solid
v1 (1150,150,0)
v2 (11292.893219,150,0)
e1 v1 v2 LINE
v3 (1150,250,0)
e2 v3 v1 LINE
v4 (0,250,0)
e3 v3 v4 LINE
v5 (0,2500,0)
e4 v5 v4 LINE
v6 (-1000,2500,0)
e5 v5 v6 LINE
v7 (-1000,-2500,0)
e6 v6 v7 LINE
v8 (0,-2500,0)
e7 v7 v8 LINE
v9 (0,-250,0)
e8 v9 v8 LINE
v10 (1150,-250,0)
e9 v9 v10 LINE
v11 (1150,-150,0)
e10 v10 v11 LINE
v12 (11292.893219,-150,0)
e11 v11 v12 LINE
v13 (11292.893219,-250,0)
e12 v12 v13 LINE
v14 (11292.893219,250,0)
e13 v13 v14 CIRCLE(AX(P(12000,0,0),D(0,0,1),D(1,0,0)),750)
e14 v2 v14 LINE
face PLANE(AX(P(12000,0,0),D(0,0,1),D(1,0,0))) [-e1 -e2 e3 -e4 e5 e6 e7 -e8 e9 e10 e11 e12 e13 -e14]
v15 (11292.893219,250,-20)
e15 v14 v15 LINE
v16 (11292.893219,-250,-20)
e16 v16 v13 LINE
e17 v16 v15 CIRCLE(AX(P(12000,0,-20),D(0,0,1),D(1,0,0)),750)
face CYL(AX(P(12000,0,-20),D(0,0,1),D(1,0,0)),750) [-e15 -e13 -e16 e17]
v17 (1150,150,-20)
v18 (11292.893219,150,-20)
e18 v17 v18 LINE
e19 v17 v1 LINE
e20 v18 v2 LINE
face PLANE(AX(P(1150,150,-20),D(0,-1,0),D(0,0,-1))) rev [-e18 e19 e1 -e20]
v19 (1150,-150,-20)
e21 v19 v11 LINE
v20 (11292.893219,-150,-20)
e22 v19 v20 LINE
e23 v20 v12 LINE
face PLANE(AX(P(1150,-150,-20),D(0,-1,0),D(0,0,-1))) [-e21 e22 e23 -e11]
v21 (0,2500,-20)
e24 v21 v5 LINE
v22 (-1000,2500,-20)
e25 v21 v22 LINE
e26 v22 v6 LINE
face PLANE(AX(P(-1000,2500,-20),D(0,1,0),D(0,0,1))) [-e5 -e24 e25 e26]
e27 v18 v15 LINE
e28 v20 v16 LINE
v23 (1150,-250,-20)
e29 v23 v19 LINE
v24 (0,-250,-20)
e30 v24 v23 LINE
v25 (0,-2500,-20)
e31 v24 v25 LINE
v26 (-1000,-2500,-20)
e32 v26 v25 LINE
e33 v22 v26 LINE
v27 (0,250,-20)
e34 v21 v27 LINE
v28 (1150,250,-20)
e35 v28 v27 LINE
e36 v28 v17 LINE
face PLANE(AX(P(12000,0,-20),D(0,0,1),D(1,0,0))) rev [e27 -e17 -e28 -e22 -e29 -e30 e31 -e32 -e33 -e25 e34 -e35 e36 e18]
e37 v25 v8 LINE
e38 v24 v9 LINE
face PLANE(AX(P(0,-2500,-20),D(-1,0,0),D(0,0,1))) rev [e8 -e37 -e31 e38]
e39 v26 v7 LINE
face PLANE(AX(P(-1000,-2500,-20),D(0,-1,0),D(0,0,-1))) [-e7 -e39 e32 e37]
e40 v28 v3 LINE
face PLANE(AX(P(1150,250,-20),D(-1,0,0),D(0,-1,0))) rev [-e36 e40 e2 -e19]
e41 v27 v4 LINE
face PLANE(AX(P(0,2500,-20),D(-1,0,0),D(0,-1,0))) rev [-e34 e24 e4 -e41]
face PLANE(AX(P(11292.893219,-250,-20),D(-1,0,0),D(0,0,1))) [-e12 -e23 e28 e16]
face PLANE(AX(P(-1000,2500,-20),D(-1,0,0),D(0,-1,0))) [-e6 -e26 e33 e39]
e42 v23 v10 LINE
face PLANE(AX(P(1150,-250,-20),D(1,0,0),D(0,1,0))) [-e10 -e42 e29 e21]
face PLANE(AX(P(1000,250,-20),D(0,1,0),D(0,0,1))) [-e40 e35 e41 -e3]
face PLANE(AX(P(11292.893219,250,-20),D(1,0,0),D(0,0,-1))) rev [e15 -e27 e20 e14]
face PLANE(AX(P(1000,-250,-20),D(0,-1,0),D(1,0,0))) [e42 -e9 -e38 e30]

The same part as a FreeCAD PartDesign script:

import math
import FreeCAD as App
import Part
import Sketcher


def add_polygon(sketch, points):
    """Adds a closed chain of lines whose ends are joined by coincident constraints."""
    first, n = sketch.GeometryCount, len(points)
    for a, b in zip(points, points[1:] + points[:1]):
        sketch.addGeometry(Part.LineSegment(App.Vector(*a, 0), App.Vector(*b, 0)), False)
    for i in range(n):
        sketch.addConstraint(Sketcher.Constraint("Coincident", first + i, 2, first + (i + 1) % n, 1))

doc = App.newDocument("Part")
body = doc.addObject("PartDesign::Body", "Body")

# Sketch on XY plane
sketch1 = body.newObject("Sketcher::SketchObject", "Sketch")
sketch1.AttachmentSupport = (doc.getObject("XY_Plane"), [""])
sketch1.MapMode = "FlatFace"
sketch1.addGeometry([
    Part.LineSegment(App.Vector(5000, 250, 0), App.Vector(1000, 250, 0)),  # 0
    Part.LineSegment(App.Vector(1000, 250, 0), App.Vector(1000, 2500, 0)),  # 1
    Part.LineSegment(App.Vector(1000, 2500, 0), App.Vector(-1000, 2500, 0)),  # 2
    Part.LineSegment(App.Vector(-1000, 2500, 0), App.Vector(-1000, -2500, 0)),  # 3
    Part.LineSegment(App.Vector(-1000, -2500, 0), App.Vector(1000, -2500, 0)),  # 4
    Part.LineSegment(App.Vector(1000, -2500, 0), App.Vector(1000, -250, 0)),  # 5
    Part.LineSegment(App.Vector(1000, -250, 0), App.Vector(5000, -250, 0)),  # 6
    Part.LineSegment(App.Vector(5000, -250, 0), App.Vector(5000, -125, 0)),  # 7
    Part.LineSegment(App.Vector(5000, -125, 0), App.Vector(9000, -125, 0)),  # 8
    Part.LineSegment(App.Vector(9000, -125, 0), App.Vector(9000, -100, 0)),  # 9
    Part.LineSegment(App.Vector(9000, -100, 0), App.Vector(11257, -100, 0)),  # 10
    Part.ArcOfCircle(Part.Circle(App.Vector(12000, 0, 0), App.Vector(0, 0, 1), 750), math.radians(-172), math.radians(172)),  # 11
    Part.LineSegment(App.Vector(11257, 100, 0), App.Vector(9000, 100, 0)),  # 12
    Part.LineSegment(App.Vector(9000, 100, 0), App.Vector(9000, 125, 0)),  # 13
    Part.LineSegment(App.Vector(9000, 125, 0), App.Vector(5000, 125, 0)),  # 14
    Part.LineSegment(App.Vector(5000, 125, 0), App.Vector(5000, 250, 0)),  # 15
], False)
sketch1.addConstraint([
    Sketcher.Constraint("Coincident", 0, 2, 1, 1),
    Sketcher.Constraint("Coincident", 1, 2, 2, 1),
    Sketcher.Constraint("Coincident", 2, 2, 3, 1),
    Sketcher.Constraint("Coincident", 3, 2, 4, 1),
    Sketcher.Constraint("Coincident", 4, 2, 5, 1),
    Sketcher.Constraint("Coincident", 5, 2, 6, 1),
    Sketcher.Constraint("Coincident", 6, 2, 7, 1),
    Sketcher.Constraint("Coincident", 7, 2, 8, 1),
    Sketcher.Constraint("Coincident", 8, 2, 9, 1),
    Sketcher.Constraint("Coincident", 9, 2, 10, 1),
    Sketcher.Constraint("Coincident", 10, 2, 11, 1),
    Sketcher.Constraint("Coincident", 11, 2, 12, 1),
    Sketcher.Constraint("Coincident", 12, 2, 13, 1),
    Sketcher.Constraint("Coincident", 13, 2, 14, 1),
    Sketcher.Constraint("Coincident", 14, 2, 15, 1),
    Sketcher.Constraint("Coincident", 15, 2, 0, 1),
    Sketcher.Constraint("Horizontal", 0),
    Sketcher.Constraint("Vertical", 1),
    Sketcher.Constraint("Horizontal", 2),
    Sketcher.Constraint("Vertical", 3),
    Sketcher.Constraint("Horizontal", 4),
    Sketcher.Constraint("Vertical", 5),
    Sketcher.Constraint("Horizontal", 6),
    Sketcher.Constraint("Vertical", 7),
    Sketcher.Constraint("Horizontal", 8),
    Sketcher.Constraint("Vertical", 9),
    Sketcher.Constraint("Horizontal", 10),
    Sketcher.Constraint("Horizontal", 12),
    Sketcher.Constraint("Vertical", 13),
    Sketcher.Constraint("Horizontal", 14),
    Sketcher.Constraint("Vertical", 15),
    Sketcher.Constraint("Symmetric", 1, 2, 3, 2, -1, 1),
    Sketcher.Constraint("Symmetric", 0, 2, 5, 2, -1),
    Sketcher.Constraint("Symmetric", 9, 2, 12, 2, -1),
    Sketcher.Constraint("Symmetric", 7, 2, 14, 2, -1),
    Sketcher.Constraint("PointOnObject", 11, 3, -1),
    Sketcher.Constraint("Equal", 6, 8),
    Sketcher.Constraint("Radius", 11, 750.0),
    Sketcher.Constraint("DistanceX", 0, 2, 0, 1, 4000.0),
    Sketcher.Constraint("DistanceX", 2, 2, 2, 1, 2000.0),
    Sketcher.Constraint("DistanceY", 1, 1, 1, 2, 2250.0),
    Sketcher.Constraint("DistanceY", 3, 2, 3, 1, 5000.0),
    Sketcher.Constraint("DistanceY", 7, 1, 7, 2, 125.0),
    Sketcher.Constraint("DistanceY", 9, 1, 9, 2, 25.0),
    Sketcher.Constraint("DistanceX", -1, 1, 11, 3, 12000.0),
])
pad1 = body.newObject("PartDesign::Pad", "Pad")
pad1.Profile = sketch1
pad1.Length = 20
pad1.Reversed = True

# Sketch on XY plane
sketch2 = body.newObject("Sketcher::SketchObject", "Sketch001")
sketch2.AttachmentSupport = (doc.getObject("XY_Plane"), [""])
sketch2.MapMode = "FlatFace"
add_polygon(sketch2, [(0, 2500), (0, 250), (1000, 250), (1000, 2500)])  # lines 0-3
add_polygon(sketch2, [(0, -250), (0, -2500), (1000, -2500), (1000, -250)])  # lines 4-7
sketch2.addConstraint([
    Sketcher.Constraint("Vertical", 0),
    Sketcher.Constraint("Horizontal", 1),
    Sketcher.Constraint("Vertical", 2),
    Sketcher.Constraint("Horizontal", 3),
    Sketcher.Constraint("Vertical", 4),
    Sketcher.Constraint("Horizontal", 5),
    Sketcher.Constraint("Vertical", 6),
    Sketcher.Constraint("Horizontal", 7),
    Sketcher.Constraint("Symmetric", 3, 2, 4, 2, -1, 1),
    Sketcher.Constraint("Symmetric", 1, 2, 6, 2, -1),
    Sketcher.Constraint("PointOnObject", 0, 2, -2),
    Sketcher.Constraint("DistanceX", 1, 1, 1, 2, 1000.0),
    Sketcher.Constraint("DistanceY", 0, 2, 0, 1, 2250.0),
    Sketcher.Constraint("DistanceY", -1, 1, 0, 2, 250.0),
])
pocket1 = body.newObject("PartDesign::Pocket", "Pocket")
pocket1.Profile = sketch2
pocket1.Type = "ThroughAll"

# Sketch on XY plane
sketch3 = body.newObject("Sketcher::SketchObject", "Sketch002")
sketch3.AttachmentSupport = (doc.getObject("XY_Plane"), [""])
sketch3.MapMode = "FlatFace"
add_polygon(sketch3, [(1500, -250), (5000, -250), (5000, -150), (3250, -150), (3250, -200), (1500, -200)])  # lines 0-5
sketch3.addConstraint([
    Sketcher.Constraint("Horizontal", 0),
    Sketcher.Constraint("Vertical", 1),
    Sketcher.Constraint("Horizontal", 2),
    Sketcher.Constraint("Vertical", 3),
    Sketcher.Constraint("Horizontal", 4),
    Sketcher.Constraint("Vertical", 5),
    Sketcher.Constraint("Equal", 2, 4),
    Sketcher.Constraint("Equal", 3, 5),
    Sketcher.Constraint("DistanceX", 0, 1, 0, 2, 3500.0),
    Sketcher.Constraint("DistanceY", 1, 1, 1, 2, 100.0),
    Sketcher.Constraint("DistanceX", -1, 1, 0, 2, 5000.0),
    Sketcher.Constraint("DistanceY", 0, 2, -1, 1, 250.0),
])
pocket2 = body.newObject("PartDesign::Pocket", "Pocket001")
pocket2.Profile = sketch3
pocket2.Type = "ThroughAll"
doc.recompute()

mirrored = body.newObject("PartDesign::Mirrored", "Mirrored")
mirrored.Originals = [pocket2]
mirrored.MirrorPlane = (doc.getObject("XZ_Plane"), [""])
body.Tip = mirrored

# Sketch on XY plane
sketch4 = body.newObject("Sketcher::SketchObject", "Sketch003")
sketch4.AttachmentSupport = (doc.getObject("XY_Plane"), [""])
sketch4.MapMode = "FlatFace"
add_polygon(sketch4, [(0, 250), (0, -250), (11500, -250), (11500, 250)])  # lines 0-3
sketch4.addConstraint([
    Sketcher.Constraint("Vertical", 0),
    Sketcher.Constraint("Horizontal", 1),
    Sketcher.Constraint("Vertical", 2),
    Sketcher.Constraint("Horizontal", 3),
    Sketcher.Constraint("Symmetric", 0, 2, 3, 2, -1, 1),
    Sketcher.Constraint("DistanceX", 1, 1, 1, 2, 11500.0),
    Sketcher.Constraint("DistanceY", 0, 2, 0, 1, 500.0),
])
pad2 = body.newObject("PartDesign::Pad", "Pad001")
pad2.Profile = sketch4
pad2.Length = 20
pad2.Reversed = True

# Sketch on XY plane
sketch5 = body.newObject("Sketcher::SketchObject", "Sketch004")
sketch5.AttachmentSupport = (doc.getObject("XY_Plane"), [""])
sketch5.MapMode = "FlatFace"
add_polygon(sketch5, [(1150, 250), (1150, 150), (11293, 150), (11293, 250)])  # lines 0-3
sketch5.addConstraint([
    Sketcher.Constraint("Vertical", 0),
    Sketcher.Constraint("Horizontal", 1),
    Sketcher.Constraint("Vertical", 2),
    Sketcher.Constraint("Horizontal", 3),
    Sketcher.Constraint("DistanceY", 0, 2, 0, 1, 100.0),
    Sketcher.Constraint("DistanceX", -1, 1, 0, 2, 1150.0),
    Sketcher.Constraint("DistanceY", -1, 1, 0, 2, 150.0),
    Sketcher.Constraint("DistanceX", 1, 1, 1, 2, 10142.893219),
])
pocket3 = body.newObject("PartDesign::Pocket", "Pocket002")
pocket3.Profile = sketch5
pocket3.Type = "ThroughAll"
doc.recompute()

mirrored2 = body.newObject("PartDesign::Mirrored", "Mirrored001")
mirrored2.Originals = [pocket3]
mirrored2.MirrorPlane = (doc.getObject("XZ_Plane"), [""])
body.Tip = mirrored2

doc.recompute()
